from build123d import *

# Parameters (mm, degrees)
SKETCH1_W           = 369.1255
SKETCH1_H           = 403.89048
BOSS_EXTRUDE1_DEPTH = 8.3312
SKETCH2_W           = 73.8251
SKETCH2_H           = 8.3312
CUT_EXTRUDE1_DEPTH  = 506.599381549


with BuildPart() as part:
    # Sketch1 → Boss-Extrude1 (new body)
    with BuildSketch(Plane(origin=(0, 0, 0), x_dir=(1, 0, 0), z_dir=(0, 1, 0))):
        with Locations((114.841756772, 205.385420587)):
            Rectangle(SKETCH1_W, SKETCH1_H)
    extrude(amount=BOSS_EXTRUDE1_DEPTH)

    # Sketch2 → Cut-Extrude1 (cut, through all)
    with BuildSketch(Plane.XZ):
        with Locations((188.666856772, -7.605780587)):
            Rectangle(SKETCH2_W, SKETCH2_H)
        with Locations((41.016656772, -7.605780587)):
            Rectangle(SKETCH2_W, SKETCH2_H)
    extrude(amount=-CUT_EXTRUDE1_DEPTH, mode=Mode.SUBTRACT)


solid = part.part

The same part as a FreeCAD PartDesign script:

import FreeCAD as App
import Part
import Sketcher
from FreeCAD import Vector
Q = App.Units.Quantity


def add_polygon(sketch, points):
    """Adds a closed chain of lines whose ends are joined by coincident constraints."""
    first, n = sketch.GeometryCount, len(points)
    for a, b in zip(points, points[1:] + points[:1]):
        sketch.addGeometry(Part.LineSegment(App.Vector(*a, 0), App.Vector(*b, 0)), False)
    for i in range(n):
        sketch.addConstraint(Sketcher.Constraint("Coincident", first + i, 2, first + (i + 1) % n, 1))

doc = App.newDocument("Part")
body = doc.addObject("PartDesign::Body", "Body")

# Sketch on XZ plane
sketch1 = doc.addObject("Sketcher::SketchObject", "Sketch")
body.addObject(sketch1)
sketch1.AttachmentSupport = (doc.XZ_Plane, [""])
sketch1.MapMode = "FlatFace"
add_polygon(sketch1, [(-69.720993, -407.330661), (-69.720993, -3.440181), (299.404507, -3.440181), (299.404507, -407.330661)])  # lines 0-3
sketch1.addConstraint([
    Sketcher.Constraint("Vertical", 0),
    Sketcher.Constraint("Horizontal", 1),
    Sketcher.Constraint("Vertical", 2),
    Sketcher.Constraint("Horizontal", 3),
    Sketcher.Constraint("DistanceX", 1, 1, 1, 2, Q("14.5325 in")),
    Sketcher.Constraint("DistanceY", 0, 1, 0, 2, Q("15.9012 in")),
    Sketcher.Constraint("DistanceY", 0, 2, -1, 1, Q("3.440181 mm")),
    Sketcher.Constraint("DistanceX", 0, 2, -1, 1, Q("69.720993 mm")),
])
pad1 = doc.addObject("PartDesign::Pad", "Pad")
body.addObject(pad1)
pad1.Profile = sketch1
pad1.Length = Q("0.328 in")
pad1.Reversed = True

# Sketch on XZ plane
sketch2 = doc.addObject("Sketcher::SketchObject", "Sketch001")
body.addObject(sketch2)
sketch2.AttachmentSupport = (doc.XZ_Plane, [""])
sketch2.MapMode = "FlatFace"
add_polygon(sketch2, [(151.754307, -3.440181), (151.754307, -11.771381), (225.579407, -11.771381), (225.579407, -3.440181)])  # lines 0-3
add_polygon(sketch2, [(4.104107, -3.440181), (4.104107, -11.771381), (77.929207, -11.771381), (77.929207, -3.440181)])  # lines 4-7
sketch2.addConstraint([
    Sketcher.Constraint("Vertical", 0),
    Sketcher.Constraint("Horizontal", 1),
    Sketcher.Constraint("Vertical", 2),
    Sketcher.Constraint("Horizontal", 3),
    Sketcher.Constraint("Vertical", 4),
    Sketcher.Constraint("Horizontal", 5),
    Sketcher.Constraint("Vertical", 6),
    Sketcher.Constraint("Horizontal", 7),
    Sketcher.Constraint("Horizontal", 1, 2, 4, 2),
    Sketcher.Constraint("Horizontal", 3, 2, 6, 2),
    Sketcher.Constraint("Equal", 3, 5),
    Sketcher.Constraint("DistanceY", 0, 2, 0, 1, Q("0.328 in")),
    Sketcher.Constraint("DistanceX", 1, 1, 1, 2, Q("2.9065 in")),
    Sketcher.Constraint("DistanceX", 4, 2, 0, 2, Q("5.813 in")),
    Sketcher.Constraint("DistanceY", 0, 2, -1, 1, Q("11.771381 mm")),
    Sketcher.Constraint("DistanceX", -1, 1, 0, 2, Q("151.754307 mm")),
])
pocket1 = doc.addObject("PartDesign::Pocket", "Pocket")
body.addObject(pocket1)
pocket1.Profile = sketch2
pocket1.Type = "ThroughAll"

doc.recompute()
